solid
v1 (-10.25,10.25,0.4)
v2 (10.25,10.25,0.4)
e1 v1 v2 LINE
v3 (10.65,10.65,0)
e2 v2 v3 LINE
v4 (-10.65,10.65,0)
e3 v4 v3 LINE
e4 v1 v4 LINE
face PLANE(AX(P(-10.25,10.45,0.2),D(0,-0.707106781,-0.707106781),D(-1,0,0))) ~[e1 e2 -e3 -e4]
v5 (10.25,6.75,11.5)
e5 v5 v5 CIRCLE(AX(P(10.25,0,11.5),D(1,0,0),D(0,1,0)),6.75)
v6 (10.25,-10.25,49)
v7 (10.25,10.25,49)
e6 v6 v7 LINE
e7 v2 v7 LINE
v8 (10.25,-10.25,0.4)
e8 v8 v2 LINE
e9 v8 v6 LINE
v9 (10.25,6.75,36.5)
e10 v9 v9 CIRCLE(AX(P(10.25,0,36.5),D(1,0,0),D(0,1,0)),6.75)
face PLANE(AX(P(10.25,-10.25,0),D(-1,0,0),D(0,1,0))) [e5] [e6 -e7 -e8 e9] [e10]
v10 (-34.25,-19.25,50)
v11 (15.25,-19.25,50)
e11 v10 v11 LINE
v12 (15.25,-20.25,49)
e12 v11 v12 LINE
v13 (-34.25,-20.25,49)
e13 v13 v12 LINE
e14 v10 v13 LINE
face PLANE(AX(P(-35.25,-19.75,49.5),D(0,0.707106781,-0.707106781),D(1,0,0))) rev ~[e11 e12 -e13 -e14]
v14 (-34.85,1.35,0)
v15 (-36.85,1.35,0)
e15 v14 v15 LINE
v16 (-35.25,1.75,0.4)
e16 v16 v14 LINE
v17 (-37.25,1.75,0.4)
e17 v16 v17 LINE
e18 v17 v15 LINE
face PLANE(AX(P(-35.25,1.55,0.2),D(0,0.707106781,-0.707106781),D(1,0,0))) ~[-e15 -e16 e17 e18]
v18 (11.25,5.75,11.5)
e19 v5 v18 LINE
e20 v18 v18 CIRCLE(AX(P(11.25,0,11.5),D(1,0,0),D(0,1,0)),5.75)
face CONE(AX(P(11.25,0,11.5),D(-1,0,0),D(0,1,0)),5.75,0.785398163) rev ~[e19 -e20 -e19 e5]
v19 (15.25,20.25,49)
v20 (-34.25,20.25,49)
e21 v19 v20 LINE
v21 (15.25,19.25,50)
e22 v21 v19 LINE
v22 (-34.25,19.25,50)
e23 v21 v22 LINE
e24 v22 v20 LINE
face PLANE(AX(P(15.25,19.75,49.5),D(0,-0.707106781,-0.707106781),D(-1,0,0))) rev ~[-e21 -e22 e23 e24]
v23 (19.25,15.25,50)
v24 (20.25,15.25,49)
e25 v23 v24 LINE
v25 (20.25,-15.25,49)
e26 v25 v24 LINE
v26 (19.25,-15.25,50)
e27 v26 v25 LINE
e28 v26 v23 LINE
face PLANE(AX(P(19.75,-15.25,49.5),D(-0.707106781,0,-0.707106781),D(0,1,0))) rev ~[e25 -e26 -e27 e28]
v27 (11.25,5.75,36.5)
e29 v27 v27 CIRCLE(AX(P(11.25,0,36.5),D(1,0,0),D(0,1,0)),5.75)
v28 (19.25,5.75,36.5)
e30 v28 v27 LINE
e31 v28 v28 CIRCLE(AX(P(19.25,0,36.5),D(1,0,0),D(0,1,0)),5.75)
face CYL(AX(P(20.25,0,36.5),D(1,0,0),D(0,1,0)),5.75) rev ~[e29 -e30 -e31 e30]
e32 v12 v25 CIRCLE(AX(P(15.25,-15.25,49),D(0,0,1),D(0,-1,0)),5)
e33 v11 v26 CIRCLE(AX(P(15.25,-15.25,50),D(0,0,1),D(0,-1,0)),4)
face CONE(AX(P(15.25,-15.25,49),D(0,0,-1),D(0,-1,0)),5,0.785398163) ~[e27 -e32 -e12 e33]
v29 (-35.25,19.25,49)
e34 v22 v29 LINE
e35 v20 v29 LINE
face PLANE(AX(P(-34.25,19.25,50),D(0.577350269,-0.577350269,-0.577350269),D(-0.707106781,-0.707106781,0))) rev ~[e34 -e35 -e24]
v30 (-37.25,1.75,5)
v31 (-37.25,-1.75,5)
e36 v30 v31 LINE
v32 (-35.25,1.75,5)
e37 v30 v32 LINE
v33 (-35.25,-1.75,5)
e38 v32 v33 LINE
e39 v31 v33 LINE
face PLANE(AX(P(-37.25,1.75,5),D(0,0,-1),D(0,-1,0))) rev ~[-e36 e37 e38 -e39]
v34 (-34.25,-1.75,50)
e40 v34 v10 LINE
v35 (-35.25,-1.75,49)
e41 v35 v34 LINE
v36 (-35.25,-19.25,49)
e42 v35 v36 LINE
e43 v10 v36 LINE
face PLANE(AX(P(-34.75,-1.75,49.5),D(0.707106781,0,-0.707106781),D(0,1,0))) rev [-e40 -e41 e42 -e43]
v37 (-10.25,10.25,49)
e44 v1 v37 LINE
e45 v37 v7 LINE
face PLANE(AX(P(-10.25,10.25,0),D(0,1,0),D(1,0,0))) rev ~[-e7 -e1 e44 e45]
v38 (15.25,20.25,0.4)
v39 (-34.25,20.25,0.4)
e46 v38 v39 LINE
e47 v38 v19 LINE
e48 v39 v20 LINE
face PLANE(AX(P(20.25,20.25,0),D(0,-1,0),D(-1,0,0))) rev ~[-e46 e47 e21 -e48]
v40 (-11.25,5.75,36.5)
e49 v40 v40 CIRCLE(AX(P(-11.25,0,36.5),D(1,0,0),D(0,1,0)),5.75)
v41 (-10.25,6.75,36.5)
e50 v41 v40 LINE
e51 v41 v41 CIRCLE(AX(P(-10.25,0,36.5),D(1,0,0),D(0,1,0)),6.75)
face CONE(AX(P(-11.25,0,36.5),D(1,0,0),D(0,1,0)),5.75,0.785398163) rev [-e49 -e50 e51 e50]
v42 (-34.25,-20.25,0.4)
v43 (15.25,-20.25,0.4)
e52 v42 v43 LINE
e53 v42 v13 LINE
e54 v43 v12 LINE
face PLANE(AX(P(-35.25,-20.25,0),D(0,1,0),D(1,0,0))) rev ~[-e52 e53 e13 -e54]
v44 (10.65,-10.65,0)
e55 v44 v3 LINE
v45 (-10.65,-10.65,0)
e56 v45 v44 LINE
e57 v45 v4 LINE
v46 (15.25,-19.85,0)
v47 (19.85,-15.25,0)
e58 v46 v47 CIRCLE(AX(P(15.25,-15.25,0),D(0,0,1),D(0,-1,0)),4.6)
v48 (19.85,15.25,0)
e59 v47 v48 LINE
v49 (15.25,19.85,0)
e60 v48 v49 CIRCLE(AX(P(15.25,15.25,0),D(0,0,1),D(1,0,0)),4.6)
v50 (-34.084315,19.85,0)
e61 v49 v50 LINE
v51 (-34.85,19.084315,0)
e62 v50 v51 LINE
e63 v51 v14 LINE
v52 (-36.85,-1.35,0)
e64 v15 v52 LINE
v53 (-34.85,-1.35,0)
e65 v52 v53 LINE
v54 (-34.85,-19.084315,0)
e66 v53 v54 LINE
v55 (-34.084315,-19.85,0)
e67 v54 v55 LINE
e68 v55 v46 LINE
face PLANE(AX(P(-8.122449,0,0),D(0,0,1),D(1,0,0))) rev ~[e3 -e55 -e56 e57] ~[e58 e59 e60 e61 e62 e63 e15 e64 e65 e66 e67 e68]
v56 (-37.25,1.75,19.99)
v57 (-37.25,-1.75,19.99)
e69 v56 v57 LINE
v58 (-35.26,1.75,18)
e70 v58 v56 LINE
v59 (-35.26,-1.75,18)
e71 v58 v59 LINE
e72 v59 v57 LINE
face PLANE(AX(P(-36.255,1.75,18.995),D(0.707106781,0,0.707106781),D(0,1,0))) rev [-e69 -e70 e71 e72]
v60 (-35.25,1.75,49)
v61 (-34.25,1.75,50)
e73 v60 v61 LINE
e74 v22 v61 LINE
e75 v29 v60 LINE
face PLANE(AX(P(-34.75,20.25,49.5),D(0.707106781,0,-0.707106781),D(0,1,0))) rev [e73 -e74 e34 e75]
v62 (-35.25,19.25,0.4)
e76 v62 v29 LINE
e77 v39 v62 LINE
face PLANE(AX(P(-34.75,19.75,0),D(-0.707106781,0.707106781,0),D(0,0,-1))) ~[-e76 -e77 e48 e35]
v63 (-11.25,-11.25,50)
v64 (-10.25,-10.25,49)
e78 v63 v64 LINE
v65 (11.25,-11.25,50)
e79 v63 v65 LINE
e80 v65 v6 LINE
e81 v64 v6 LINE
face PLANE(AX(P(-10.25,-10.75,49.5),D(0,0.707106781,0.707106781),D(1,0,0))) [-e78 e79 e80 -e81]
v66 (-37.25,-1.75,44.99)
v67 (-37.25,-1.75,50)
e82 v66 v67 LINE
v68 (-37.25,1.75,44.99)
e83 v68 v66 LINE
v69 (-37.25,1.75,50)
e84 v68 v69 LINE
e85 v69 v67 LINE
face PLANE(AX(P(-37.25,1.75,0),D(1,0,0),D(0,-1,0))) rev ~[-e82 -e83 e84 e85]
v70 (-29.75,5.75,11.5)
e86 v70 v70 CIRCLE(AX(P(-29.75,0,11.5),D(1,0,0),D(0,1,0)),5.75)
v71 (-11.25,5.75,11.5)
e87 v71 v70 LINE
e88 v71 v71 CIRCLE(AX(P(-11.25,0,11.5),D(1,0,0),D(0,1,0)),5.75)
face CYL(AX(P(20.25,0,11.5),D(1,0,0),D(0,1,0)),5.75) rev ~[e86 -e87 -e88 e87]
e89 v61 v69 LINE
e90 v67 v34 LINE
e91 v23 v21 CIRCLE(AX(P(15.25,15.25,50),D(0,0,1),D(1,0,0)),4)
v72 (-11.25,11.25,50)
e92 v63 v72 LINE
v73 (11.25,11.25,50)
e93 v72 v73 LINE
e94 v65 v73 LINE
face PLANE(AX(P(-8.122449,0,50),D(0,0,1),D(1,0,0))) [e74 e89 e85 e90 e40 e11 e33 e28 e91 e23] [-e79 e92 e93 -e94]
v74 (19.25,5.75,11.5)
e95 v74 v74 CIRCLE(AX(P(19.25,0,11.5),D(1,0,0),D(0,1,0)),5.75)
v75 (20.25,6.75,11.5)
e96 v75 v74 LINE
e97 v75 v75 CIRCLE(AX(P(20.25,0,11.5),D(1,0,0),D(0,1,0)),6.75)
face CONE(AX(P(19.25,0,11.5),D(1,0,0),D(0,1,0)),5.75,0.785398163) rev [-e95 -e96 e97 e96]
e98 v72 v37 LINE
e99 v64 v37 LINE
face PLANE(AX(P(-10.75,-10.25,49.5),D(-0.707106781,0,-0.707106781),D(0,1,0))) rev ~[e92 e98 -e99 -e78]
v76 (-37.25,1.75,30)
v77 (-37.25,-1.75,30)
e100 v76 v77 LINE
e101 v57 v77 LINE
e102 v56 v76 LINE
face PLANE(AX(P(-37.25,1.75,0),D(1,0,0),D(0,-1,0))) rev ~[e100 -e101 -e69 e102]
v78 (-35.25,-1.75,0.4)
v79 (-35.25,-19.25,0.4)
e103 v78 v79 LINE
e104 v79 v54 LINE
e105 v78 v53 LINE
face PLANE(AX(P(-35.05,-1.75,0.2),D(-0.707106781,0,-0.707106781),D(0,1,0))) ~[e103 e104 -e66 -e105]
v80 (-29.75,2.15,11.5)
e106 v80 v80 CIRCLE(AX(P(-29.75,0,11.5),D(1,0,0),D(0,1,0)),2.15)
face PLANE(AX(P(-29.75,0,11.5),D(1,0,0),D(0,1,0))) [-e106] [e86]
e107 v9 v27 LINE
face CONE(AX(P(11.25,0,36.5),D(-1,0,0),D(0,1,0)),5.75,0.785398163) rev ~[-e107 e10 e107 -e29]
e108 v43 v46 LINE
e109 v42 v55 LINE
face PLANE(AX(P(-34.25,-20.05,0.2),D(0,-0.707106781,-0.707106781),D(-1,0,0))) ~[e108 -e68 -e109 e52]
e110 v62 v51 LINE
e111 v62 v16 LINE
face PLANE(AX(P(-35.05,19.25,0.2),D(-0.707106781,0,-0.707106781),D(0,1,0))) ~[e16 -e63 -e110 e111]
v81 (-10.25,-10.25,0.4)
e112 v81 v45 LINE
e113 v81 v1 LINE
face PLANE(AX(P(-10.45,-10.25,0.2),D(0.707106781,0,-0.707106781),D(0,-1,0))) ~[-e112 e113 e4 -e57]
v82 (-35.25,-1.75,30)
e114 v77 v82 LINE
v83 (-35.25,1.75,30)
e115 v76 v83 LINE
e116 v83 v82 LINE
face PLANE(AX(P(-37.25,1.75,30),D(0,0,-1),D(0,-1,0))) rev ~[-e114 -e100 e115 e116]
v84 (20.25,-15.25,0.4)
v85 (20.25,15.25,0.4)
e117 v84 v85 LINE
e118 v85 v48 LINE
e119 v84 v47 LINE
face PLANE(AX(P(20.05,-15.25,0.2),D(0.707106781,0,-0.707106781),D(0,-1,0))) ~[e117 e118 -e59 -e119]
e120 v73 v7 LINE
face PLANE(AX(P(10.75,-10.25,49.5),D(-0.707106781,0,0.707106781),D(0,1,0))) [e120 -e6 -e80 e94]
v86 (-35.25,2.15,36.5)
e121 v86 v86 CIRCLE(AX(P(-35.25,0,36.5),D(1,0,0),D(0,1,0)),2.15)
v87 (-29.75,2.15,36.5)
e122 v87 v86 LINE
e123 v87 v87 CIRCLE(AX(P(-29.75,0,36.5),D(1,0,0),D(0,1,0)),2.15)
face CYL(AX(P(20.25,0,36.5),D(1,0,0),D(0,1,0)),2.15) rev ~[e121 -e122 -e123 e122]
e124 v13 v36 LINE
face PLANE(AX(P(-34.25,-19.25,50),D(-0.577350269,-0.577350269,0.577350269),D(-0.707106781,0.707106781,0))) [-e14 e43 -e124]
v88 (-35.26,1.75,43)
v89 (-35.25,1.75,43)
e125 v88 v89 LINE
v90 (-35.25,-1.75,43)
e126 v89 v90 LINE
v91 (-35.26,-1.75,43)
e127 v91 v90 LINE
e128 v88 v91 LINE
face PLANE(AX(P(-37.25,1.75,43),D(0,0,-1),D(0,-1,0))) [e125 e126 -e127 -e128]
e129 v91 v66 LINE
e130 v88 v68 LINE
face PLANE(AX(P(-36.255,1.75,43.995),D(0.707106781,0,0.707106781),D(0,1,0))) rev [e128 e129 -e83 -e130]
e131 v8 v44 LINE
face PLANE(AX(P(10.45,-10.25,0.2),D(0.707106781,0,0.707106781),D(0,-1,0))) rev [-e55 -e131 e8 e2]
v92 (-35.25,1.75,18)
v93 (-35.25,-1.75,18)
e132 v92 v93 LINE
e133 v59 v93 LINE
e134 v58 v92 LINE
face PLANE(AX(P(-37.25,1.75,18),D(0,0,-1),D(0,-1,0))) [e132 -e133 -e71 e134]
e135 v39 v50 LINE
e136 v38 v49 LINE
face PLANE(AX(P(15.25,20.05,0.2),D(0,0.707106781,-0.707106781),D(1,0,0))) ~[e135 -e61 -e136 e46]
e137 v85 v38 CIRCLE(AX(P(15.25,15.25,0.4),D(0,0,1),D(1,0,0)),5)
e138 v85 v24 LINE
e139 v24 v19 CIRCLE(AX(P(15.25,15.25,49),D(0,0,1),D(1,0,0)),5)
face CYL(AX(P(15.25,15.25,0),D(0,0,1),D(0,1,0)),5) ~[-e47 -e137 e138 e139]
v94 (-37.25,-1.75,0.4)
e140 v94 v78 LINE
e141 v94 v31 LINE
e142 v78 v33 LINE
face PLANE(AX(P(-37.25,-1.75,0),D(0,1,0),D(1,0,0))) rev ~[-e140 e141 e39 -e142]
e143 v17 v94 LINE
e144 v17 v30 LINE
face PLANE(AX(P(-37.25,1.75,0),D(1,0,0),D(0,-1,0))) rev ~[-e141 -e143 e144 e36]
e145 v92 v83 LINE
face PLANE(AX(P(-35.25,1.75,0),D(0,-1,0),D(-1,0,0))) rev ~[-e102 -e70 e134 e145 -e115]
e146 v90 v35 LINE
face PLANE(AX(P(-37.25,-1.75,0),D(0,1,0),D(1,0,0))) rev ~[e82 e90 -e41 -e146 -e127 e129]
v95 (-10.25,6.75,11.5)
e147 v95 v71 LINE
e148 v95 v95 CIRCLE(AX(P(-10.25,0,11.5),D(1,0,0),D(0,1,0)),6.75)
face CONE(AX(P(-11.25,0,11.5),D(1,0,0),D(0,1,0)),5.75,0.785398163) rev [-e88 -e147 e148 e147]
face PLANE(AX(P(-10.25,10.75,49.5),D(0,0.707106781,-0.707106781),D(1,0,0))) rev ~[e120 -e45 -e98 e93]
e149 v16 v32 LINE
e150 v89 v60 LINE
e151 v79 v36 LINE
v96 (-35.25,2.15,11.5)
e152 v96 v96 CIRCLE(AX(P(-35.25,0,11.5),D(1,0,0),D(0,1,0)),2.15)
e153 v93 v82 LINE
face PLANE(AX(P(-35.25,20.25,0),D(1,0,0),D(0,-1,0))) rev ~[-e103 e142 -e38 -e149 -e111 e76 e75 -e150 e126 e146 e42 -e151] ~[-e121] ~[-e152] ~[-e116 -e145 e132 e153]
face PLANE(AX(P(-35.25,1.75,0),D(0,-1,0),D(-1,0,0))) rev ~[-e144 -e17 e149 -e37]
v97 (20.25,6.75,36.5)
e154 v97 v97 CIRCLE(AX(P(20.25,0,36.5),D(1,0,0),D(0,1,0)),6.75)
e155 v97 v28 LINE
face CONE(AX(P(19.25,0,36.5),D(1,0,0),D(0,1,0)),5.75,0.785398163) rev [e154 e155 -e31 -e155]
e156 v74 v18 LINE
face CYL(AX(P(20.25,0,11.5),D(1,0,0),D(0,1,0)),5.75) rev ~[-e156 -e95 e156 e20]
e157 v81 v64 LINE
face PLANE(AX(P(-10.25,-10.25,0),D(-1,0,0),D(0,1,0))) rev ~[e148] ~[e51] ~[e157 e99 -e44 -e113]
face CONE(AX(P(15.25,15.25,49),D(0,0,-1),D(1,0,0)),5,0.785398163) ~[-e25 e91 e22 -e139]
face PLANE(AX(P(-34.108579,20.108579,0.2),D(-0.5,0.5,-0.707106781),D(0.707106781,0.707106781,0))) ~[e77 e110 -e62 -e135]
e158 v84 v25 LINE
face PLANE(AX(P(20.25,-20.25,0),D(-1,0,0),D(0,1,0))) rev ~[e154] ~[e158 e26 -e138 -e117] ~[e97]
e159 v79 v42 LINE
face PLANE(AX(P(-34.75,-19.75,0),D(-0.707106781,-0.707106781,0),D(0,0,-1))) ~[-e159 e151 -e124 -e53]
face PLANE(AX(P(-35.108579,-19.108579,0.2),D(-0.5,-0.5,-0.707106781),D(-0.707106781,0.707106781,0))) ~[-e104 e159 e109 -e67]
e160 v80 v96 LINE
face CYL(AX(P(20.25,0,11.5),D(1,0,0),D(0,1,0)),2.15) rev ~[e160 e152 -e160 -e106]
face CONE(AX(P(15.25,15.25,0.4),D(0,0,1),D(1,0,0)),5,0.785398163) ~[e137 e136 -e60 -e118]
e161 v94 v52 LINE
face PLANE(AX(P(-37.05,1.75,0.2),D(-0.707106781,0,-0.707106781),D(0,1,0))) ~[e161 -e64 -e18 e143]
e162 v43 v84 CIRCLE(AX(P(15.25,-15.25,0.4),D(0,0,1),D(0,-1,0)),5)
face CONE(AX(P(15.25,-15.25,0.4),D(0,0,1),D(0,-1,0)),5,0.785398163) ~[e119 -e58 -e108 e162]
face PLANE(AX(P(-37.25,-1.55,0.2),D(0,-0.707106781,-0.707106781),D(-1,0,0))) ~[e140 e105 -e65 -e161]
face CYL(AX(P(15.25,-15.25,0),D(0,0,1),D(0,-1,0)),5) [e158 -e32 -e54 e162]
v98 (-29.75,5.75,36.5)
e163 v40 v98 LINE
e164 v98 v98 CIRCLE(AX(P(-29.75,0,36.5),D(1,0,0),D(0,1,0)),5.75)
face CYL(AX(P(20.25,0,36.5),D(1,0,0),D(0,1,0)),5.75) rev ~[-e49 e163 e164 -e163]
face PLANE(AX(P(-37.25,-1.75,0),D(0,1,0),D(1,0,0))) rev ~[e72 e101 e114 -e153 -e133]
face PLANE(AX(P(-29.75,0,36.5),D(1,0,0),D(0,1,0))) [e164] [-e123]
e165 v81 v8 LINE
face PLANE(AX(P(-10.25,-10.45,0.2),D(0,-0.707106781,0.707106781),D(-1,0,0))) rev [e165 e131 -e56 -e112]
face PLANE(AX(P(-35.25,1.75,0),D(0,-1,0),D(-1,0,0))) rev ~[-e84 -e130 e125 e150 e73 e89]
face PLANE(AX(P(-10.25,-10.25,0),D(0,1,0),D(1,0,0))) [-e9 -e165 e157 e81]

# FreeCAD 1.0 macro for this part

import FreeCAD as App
import Part
import Sketcher

V = App.Vector


def edges_at(feature, points):
    """Names of the edges that pass closest to the given points."""
    edges = feature.Shape.Edges
    near = lambda p: min(range(len(edges)), key=lambda i: edges[i].distToShape(Part.Vertex(*p))[0])
    return sorted({f"Edge{near(p) + 1}" for p in points})


def add_polygon(sketch, points):
    """Adds a closed chain of lines whose ends are joined by coincident constraints."""
    first, n = sketch.GeometryCount, len(points)
    for a, b in zip(points, points[1:] + points[:1]):
        sketch.addGeometry(Part.LineSegment(App.Vector(*a, 0), App.Vector(*b, 0)), False)
    for i in range(n):
        sketch.addConstraint(Sketcher.Constraint("Coincident", first + i, 2, first + (i + 1) % n, 1))

doc = App.newDocument("Part")
body = doc.addObject("PartDesign::Body", "Body")

# Sketch on XY plane
sketch1 = body.newObject("Sketcher::SketchObject", "Sketch")
sketch1.AttachmentSupport = (doc.getObject("XY_Plane"), [""])
sketch1.MapMode = "FlatFace"
add_polygon(sketch1, [(-35.2, 1.8), (-37.2, 1.8), (-37.2, -1.8), (-35.2, -1.8), (-35.2, -20.2), (20.2, -20.2), (20.2, 20.2), (-35.2, 20.2)])  # lines 0-7
add_polygon(sketch1, [(10.2, -10.2), (-10.2, -10.2), (-10.2, 10.2), (10.2, 10.2)])  # lines 8-11
sketch1.addConstraint([
    Sketcher.Constraint("Horizontal", 0),
    Sketcher.Constraint("Vertical", 1),
    Sketcher.Constraint("Horizontal", 2),
    Sketcher.Constraint("Vertical", 3),
    Sketcher.Constraint("Horizontal", 4),
    Sketcher.Constraint("Vertical", 5),
    Sketcher.Constraint("Horizontal", 6),
    Sketcher.Constraint("Vertical", 7),
    Sketcher.Constraint("Horizontal", 8),
    Sketcher.Constraint("Vertical", 9),
    Sketcher.Constraint("Horizontal", 10),
    Sketcher.Constraint("Vertical", 11),
    Sketcher.Constraint("Symmetric", 8, 2, 10, 2, -1, 1),
    Sketcher.Constraint("Symmetric", 3, 2, 6, 2, -1),
    Sketcher.Constraint("Equal", 3, 7),
    Sketcher.Constraint("Equal", 10, 9),
    Sketcher.Constraint("DistanceX", 0, 2, 0, 1, 2.0),
    Sketcher.Constraint("DistanceX", 4, 1, 4, 2, 55.5),
    Sketcher.Constraint("DistanceX", 8, 2, 8, 1, 20.5),
    Sketcher.Constraint("DistanceY", 1, 2, 1, 1, 3.5),
    Sketcher.Constraint("DistanceY", 3, 2, 3, 1, 18.5),
    Sketcher.Constraint("DistanceX", 2, 2, 8, 2, 25.0),
])
pad1 = body.newObject("PartDesign::Pad", "Pad")
pad1.Profile = sketch1
pad1.Length = 50

# Sketch on YZ plane
sketch2 = body.newObject("Sketcher::SketchObject", "Sketch001")
sketch2.AttachmentSupport = (doc.getObject("YZ_Plane"), [""])
sketch2.MapMode = "FlatFace"
sketch2.AttachmentOffset = App.Placement(V(0, 0, -37.25), App.Rotation())
add_polygon(sketch2, [(1.8, 43), (1.8, 30), (-1.8, 30), (-1.8, 43)])  # lines 0-3
add_polygon(sketch2, [(1.8, 18), (1.8, 5), (-1.8, 5), (-1.8, 18)])  # lines 4-7
sketch2.addConstraint([
    Sketcher.Constraint("Vertical", 0),
    Sketcher.Constraint("Horizontal", 1),
    Sketcher.Constraint("Vertical", 2),
    Sketcher.Constraint("Horizontal", 3),
    Sketcher.Constraint("Vertical", 4),
    Sketcher.Constraint("Horizontal", 5),
    Sketcher.Constraint("Vertical", 6),
    Sketcher.Constraint("Horizontal", 7),
    Sketcher.Constraint("Vertical", 3, 2, 4, 2),
    Sketcher.Constraint("Vertical", 2, 2, 5, 2),
    Sketcher.Constraint("Equal", 2, 4),
    Sketcher.Constraint("DistanceY", 0, 2, 0, 1, 13.0),
    Sketcher.Constraint("DistanceX", 1, 2, 1, 1, 3.5),
    Sketcher.Constraint("DistanceY", -1, 1, 0, 2, 30.0),
    Sketcher.Constraint("DistanceY", -1, 1, 4, 2, 5.0),
    Sketcher.Constraint("DistanceX", -1, 1, 0, 2, 1.75),
])
pocket1 = body.newObject("PartDesign::Pocket", "Pocket")
pocket1.Profile = sketch2
pocket1.Length = 2
pocket1.Reversed = True
doc.recompute()

chamfer = body.newObject("PartDesign::Chamfer", "Chamfer")
chamfer.Base = (pocket1, edges_at(pocket1, [(-37.25, 0, 43), (-37.25, 0, 18)]))
chamfer.Size = 1.99

# Sketch on YZ plane
sketch3 = body.newObject("Sketcher::SketchObject", "Sketch002")
sketch3.AttachmentSupport = (doc.getObject("YZ_Plane"), [""])
sketch3.MapMode = "FlatFace"
sketch3.AttachmentOffset = App.Placement(V(0, 0, 20.25), App.Rotation())
sketch3.addGeometry([
    Part.Circle(V(0, 36.5, 0), V(0, 0, 1), 2.1),
    Part.Circle(V(0, 11.5, 0), V(0, 0, 1), 2.1),
], False)
sketch3.addConstraint([
    Sketcher.Constraint("Equal", 0, 1),
    Sketcher.Constraint("PointOnObject", 0, 3, -2),
    Sketcher.Constraint("PointOnObject", 1, 3, -2),
    Sketcher.Constraint("Diameter", 0, 4.3),
    Sketcher.Constraint("DistanceY", 1, 3, 0, 3, 25.0),
    Sketcher.Constraint("DistanceY", -1, 1, 0, 3, 36.5),
])
pocket2 = body.newObject("PartDesign::Pocket", "Pocket001")
pocket2.Profile = sketch3
pocket2.Type = "ThroughAll"

# Sketch on YZ plane
sketch4 = body.newObject("Sketcher::SketchObject", "Sketch003")
sketch4.AttachmentSupport = (doc.getObject("YZ_Plane"), [""])
sketch4.MapMode = "FlatFace"
sketch4.AttachmentOffset = App.Placement(V(0, 0, 20.25), App.Rotation())
sketch4.addGeometry([
    Part.Circle(V(0, 36, 0), V(0, 0, 1), 6),
    Part.Circle(V(0, 12, 0), V(0, 0, 1), 6),
], False)
sketch4.addConstraint([
    Sketcher.Constraint("Equal", 0, 1),
    Sketcher.Constraint("PointOnObject", 0, 3, -2),
    Sketcher.Constraint("PointOnObject", 1, 3, -2),
    Sketcher.Constraint("Diameter", 0, 11.5),
    Sketcher.Constraint("DistanceY", 1, 3, 0, 3, 25.0),
    Sketcher.Constraint("DistanceY", -1, 1, 0, 3, 36.5),
])
pocket3 = body.newObject("PartDesign::Pocket", "Pocket002")
pocket3.Profile = sketch4
pocket3.Length = 50
doc.recompute()

fillet = body.newObject("PartDesign::Fillet", "Fillet")
fillet.Base = (pocket3, edges_at(pocket3, [(20.25, -20.25, 25), (20.25, 20.25, 25)]))
fillet.Radius = 5
doc.recompute()

chamfer2 = body.newObject("PartDesign::Chamfer", "Chamfer001")
chamfer2.Base = (fillet, edges_at(fillet, [
    (-35.25, 20.25, 25),
    (-35.25, -20.25, 25),
    (-10, -20.25, 50),
    (18.786, -18.786, 50),
    (20.25, 0, 50),
    (18.786, 18.786, 50),
    (-10, 20.25, 50),
    (0, 10.25, 50),
    (-10.25, 0, 50),
    (10.25, 0, 50),
    (0, -10.25, 50),
    (-35.25, 11, 50),
    (-35.25, -11, 50),
    (20.25, -5.75, 36.5),
    (-10.25, -5.75, 36.5),
    (-10.25, -5.75, 11.5),
    (10.25, -5.75, 36.5),
    (10.25, -5.75, 11.5),
    (20.25, -5.75, 11.5),
]))
chamfer2.Size = 1
doc.recompute()

chamfer3 = body.newObject("PartDesign::Chamfer", "Chamfer002")
chamfer3.Base = (chamfer2, edges_at(chamfer2, [
    (-9.5, -20.25, 0),
    (-34.75, -19.75, 0),
    (18.786, -18.786, 0),
    (-35.25, -10.5, 0),
    (20.25, 0, 0),
    (-36.25, -1.75, 0),
    (18.786, 18.786, 0),
    (-37.25, 0, 0),
    (-9.5, 20.25, 0),
    (-36.25, 1.75, 0),
    (-34.75, 19.75, 0),
    (-35.25, 10.5, 0),
    (0, 10.25, 0),
    (10.25, 0, 0),
    (0, -10.25, 0),
    (-10.25, 0, 0),
]))
chamfer3.Size = 0.4

doc.recompute()
